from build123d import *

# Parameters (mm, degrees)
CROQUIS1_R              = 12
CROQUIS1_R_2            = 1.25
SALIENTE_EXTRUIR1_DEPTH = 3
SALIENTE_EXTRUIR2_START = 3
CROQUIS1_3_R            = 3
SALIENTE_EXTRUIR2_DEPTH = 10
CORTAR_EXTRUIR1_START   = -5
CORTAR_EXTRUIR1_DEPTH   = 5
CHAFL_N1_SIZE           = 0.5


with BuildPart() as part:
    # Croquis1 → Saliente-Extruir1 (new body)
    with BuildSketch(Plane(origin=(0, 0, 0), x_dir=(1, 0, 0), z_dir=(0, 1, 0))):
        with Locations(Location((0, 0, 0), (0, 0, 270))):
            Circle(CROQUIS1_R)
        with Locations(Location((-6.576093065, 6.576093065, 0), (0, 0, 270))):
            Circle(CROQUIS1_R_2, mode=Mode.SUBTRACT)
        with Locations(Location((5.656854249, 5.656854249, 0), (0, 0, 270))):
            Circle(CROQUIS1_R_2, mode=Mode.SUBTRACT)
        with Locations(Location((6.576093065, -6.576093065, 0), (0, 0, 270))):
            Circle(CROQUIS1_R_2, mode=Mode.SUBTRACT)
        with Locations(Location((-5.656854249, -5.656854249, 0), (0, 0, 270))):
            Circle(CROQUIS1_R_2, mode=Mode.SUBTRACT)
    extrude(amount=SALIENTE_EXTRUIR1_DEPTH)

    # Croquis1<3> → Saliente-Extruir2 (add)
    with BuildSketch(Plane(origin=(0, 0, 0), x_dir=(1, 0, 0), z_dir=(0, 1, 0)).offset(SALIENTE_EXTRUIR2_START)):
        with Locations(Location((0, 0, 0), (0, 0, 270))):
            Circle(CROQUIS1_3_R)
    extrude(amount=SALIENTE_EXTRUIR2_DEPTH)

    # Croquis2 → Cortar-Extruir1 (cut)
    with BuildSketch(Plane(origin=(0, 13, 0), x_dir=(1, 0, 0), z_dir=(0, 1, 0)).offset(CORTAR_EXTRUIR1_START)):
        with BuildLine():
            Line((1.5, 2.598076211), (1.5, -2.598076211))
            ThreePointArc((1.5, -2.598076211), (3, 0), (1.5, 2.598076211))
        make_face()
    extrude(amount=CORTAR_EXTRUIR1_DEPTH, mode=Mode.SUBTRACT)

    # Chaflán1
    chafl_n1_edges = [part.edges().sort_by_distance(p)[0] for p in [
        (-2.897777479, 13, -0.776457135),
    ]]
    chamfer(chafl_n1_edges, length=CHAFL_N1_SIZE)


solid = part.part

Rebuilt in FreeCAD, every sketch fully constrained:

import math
import FreeCAD as App
import Part
import Sketcher

V = App.Vector
Q = App.Units.Quantity


def edges_at(feature, points):
    """Names of the edges that pass closest to the given points."""
    edges = feature.Shape.Edges
    near = lambda p: min(range(len(edges)), key=lambda i: edges[i].distToShape(Part.Vertex(*p))[0])
    return sorted({f"Edge{near(p) + 1}" for p in points})

doc = App.newDocument("Part")
body = doc.addObject("PartDesign::Body", "Body")

# Sketch on XZ plane
sketch1 = doc.addObject("Sketcher::SketchObject", "Sketch")
body.addObject(sketch1)
sketch1.AttachmentSupport = (doc.XZ_Plane, [""])
sketch1.MapMode = "FlatFace"
sketch1.addGeometry([
    Part.Circle(V(0, 0, 0), V(0, 0, 1), 12),  # 0
    Part.Circle(V(-6.6, -6.6, 0), V(0, 0, 1), 1.2),  # 1
    Part.Circle(V(-5.7, 5.7, 0), V(0, 0, 1), 1.2),  # 2
    Part.Circle(V(5.7, -5.7, 0), V(0, 0, 1), 1.2),  # 3
    Part.Circle(V(6.6, 6.6, 0), V(0, 0, 1), 1.2),  # 4
], False)
sketch1.addConstraint([
    Sketcher.Constraint("Coincident", 0, 3, -1, 1),
    Sketcher.Constraint("Equal", 1, 2),
    Sketcher.Constraint("Equal", 2, 3),
    Sketcher.Constraint("Equal", 3, 4),
    Sketcher.Constraint("Symmetric", 2, 3, 3, 3, -1, 1),
    Sketcher.Constraint("Symmetric", 1, 3, 4, 3, -1, 1),
    Sketcher.Constraint("Diameter", 0, Q("24 mm")),
    Sketcher.Constraint("Diameter", 1, Q("2.5 mm")),
    Sketcher.Constraint("DistanceX", 1, 3, 2, 3, Q("0.919239 mm")),
    Sketcher.Constraint("DistanceY", 1, 3, 3, 3, Q("0.919239 mm")),
    Sketcher.Constraint("DistanceX", 2, 3, 3, 3, Q("11.313708 mm")),
    Sketcher.Constraint("DistanceY", 3, 3, 2, 3, Q("11.313708 mm")),
])
pad1 = doc.addObject("PartDesign::Pad", "Pad")
body.addObject(pad1)
pad1.Profile = sketch1
pad1.Length = 3
pad1.Reversed = True

# Sketch on XZ plane
sketch2 = doc.addObject("Sketcher::SketchObject", "Sketch001")
body.addObject(sketch2)
sketch2.AttachmentSupport = (doc.XZ_Plane, [""])
sketch2.MapMode = "FlatFace"
sketch2.AttachmentOffset = App.Placement(V(0, 0, -3), App.Rotation())
sketch2.addGeometry(Part.Circle(V(0, 0, 0), V(0, 0, 1), 3), False)
sketch2.addConstraint([
    Sketcher.Constraint("Coincident", 0, 3, -1, 1),
    Sketcher.Constraint("Diameter", 0, Q("6 mm")),
])
pad2 = doc.addObject("PartDesign::Pad", "Pad001")
body.addObject(pad2)
pad2.Profile = sketch2
pad2.Length = 10
pad2.Reversed = True

# Sketch on XZ plane
sketch3 = doc.addObject("Sketcher::SketchObject", "Sketch002")
body.addObject(sketch3)
sketch3.AttachmentSupport = (doc.XZ_Plane, [""])
sketch3.MapMode = "FlatFace"
sketch3.AttachmentOffset = App.Placement(V(0, 0, -8), App.Rotation())
sketch3.addGeometry([
    Part.LineSegment(V(1.5, -2.6, 0), V(1.5, 2.6, 0)),
    Part.ArcOfCircle(Part.Circle(V(0, 0, 0), V(0, 0, 1), 3), math.radians(-60), math.radians(60)),
], False)
sketch3.addConstraint([
    Sketcher.Constraint("Coincident", 0, 1, 1, 1),
    Sketcher.Constraint("Coincident", 1, 2, 0, 2),
    Sketcher.Constraint("Vertical", 0),
    Sketcher.Constraint("Coincident", 1, 3, -1, 1),
    Sketcher.Constraint("Radius", 1, Q("3 mm")),
    Sketcher.Constraint("DistanceX", -1, 1, 0, 1, Q("1.5 mm")),
])
pocket1 = doc.addObject("PartDesign::Pocket", "Pocket")
body.addObject(pocket1)
pocket1.Profile = sketch3
pocket1.Length = 5
doc.recompute()

chamfer = doc.addObject("PartDesign::Chamfer", "Chamfer")
body.addObject(chamfer)
chamfer.Base = (pocket1, edges_at(pocket1, [(-2.898, 13, -0.776)]))
chamfer.Size = 0.5

doc.recompute()
